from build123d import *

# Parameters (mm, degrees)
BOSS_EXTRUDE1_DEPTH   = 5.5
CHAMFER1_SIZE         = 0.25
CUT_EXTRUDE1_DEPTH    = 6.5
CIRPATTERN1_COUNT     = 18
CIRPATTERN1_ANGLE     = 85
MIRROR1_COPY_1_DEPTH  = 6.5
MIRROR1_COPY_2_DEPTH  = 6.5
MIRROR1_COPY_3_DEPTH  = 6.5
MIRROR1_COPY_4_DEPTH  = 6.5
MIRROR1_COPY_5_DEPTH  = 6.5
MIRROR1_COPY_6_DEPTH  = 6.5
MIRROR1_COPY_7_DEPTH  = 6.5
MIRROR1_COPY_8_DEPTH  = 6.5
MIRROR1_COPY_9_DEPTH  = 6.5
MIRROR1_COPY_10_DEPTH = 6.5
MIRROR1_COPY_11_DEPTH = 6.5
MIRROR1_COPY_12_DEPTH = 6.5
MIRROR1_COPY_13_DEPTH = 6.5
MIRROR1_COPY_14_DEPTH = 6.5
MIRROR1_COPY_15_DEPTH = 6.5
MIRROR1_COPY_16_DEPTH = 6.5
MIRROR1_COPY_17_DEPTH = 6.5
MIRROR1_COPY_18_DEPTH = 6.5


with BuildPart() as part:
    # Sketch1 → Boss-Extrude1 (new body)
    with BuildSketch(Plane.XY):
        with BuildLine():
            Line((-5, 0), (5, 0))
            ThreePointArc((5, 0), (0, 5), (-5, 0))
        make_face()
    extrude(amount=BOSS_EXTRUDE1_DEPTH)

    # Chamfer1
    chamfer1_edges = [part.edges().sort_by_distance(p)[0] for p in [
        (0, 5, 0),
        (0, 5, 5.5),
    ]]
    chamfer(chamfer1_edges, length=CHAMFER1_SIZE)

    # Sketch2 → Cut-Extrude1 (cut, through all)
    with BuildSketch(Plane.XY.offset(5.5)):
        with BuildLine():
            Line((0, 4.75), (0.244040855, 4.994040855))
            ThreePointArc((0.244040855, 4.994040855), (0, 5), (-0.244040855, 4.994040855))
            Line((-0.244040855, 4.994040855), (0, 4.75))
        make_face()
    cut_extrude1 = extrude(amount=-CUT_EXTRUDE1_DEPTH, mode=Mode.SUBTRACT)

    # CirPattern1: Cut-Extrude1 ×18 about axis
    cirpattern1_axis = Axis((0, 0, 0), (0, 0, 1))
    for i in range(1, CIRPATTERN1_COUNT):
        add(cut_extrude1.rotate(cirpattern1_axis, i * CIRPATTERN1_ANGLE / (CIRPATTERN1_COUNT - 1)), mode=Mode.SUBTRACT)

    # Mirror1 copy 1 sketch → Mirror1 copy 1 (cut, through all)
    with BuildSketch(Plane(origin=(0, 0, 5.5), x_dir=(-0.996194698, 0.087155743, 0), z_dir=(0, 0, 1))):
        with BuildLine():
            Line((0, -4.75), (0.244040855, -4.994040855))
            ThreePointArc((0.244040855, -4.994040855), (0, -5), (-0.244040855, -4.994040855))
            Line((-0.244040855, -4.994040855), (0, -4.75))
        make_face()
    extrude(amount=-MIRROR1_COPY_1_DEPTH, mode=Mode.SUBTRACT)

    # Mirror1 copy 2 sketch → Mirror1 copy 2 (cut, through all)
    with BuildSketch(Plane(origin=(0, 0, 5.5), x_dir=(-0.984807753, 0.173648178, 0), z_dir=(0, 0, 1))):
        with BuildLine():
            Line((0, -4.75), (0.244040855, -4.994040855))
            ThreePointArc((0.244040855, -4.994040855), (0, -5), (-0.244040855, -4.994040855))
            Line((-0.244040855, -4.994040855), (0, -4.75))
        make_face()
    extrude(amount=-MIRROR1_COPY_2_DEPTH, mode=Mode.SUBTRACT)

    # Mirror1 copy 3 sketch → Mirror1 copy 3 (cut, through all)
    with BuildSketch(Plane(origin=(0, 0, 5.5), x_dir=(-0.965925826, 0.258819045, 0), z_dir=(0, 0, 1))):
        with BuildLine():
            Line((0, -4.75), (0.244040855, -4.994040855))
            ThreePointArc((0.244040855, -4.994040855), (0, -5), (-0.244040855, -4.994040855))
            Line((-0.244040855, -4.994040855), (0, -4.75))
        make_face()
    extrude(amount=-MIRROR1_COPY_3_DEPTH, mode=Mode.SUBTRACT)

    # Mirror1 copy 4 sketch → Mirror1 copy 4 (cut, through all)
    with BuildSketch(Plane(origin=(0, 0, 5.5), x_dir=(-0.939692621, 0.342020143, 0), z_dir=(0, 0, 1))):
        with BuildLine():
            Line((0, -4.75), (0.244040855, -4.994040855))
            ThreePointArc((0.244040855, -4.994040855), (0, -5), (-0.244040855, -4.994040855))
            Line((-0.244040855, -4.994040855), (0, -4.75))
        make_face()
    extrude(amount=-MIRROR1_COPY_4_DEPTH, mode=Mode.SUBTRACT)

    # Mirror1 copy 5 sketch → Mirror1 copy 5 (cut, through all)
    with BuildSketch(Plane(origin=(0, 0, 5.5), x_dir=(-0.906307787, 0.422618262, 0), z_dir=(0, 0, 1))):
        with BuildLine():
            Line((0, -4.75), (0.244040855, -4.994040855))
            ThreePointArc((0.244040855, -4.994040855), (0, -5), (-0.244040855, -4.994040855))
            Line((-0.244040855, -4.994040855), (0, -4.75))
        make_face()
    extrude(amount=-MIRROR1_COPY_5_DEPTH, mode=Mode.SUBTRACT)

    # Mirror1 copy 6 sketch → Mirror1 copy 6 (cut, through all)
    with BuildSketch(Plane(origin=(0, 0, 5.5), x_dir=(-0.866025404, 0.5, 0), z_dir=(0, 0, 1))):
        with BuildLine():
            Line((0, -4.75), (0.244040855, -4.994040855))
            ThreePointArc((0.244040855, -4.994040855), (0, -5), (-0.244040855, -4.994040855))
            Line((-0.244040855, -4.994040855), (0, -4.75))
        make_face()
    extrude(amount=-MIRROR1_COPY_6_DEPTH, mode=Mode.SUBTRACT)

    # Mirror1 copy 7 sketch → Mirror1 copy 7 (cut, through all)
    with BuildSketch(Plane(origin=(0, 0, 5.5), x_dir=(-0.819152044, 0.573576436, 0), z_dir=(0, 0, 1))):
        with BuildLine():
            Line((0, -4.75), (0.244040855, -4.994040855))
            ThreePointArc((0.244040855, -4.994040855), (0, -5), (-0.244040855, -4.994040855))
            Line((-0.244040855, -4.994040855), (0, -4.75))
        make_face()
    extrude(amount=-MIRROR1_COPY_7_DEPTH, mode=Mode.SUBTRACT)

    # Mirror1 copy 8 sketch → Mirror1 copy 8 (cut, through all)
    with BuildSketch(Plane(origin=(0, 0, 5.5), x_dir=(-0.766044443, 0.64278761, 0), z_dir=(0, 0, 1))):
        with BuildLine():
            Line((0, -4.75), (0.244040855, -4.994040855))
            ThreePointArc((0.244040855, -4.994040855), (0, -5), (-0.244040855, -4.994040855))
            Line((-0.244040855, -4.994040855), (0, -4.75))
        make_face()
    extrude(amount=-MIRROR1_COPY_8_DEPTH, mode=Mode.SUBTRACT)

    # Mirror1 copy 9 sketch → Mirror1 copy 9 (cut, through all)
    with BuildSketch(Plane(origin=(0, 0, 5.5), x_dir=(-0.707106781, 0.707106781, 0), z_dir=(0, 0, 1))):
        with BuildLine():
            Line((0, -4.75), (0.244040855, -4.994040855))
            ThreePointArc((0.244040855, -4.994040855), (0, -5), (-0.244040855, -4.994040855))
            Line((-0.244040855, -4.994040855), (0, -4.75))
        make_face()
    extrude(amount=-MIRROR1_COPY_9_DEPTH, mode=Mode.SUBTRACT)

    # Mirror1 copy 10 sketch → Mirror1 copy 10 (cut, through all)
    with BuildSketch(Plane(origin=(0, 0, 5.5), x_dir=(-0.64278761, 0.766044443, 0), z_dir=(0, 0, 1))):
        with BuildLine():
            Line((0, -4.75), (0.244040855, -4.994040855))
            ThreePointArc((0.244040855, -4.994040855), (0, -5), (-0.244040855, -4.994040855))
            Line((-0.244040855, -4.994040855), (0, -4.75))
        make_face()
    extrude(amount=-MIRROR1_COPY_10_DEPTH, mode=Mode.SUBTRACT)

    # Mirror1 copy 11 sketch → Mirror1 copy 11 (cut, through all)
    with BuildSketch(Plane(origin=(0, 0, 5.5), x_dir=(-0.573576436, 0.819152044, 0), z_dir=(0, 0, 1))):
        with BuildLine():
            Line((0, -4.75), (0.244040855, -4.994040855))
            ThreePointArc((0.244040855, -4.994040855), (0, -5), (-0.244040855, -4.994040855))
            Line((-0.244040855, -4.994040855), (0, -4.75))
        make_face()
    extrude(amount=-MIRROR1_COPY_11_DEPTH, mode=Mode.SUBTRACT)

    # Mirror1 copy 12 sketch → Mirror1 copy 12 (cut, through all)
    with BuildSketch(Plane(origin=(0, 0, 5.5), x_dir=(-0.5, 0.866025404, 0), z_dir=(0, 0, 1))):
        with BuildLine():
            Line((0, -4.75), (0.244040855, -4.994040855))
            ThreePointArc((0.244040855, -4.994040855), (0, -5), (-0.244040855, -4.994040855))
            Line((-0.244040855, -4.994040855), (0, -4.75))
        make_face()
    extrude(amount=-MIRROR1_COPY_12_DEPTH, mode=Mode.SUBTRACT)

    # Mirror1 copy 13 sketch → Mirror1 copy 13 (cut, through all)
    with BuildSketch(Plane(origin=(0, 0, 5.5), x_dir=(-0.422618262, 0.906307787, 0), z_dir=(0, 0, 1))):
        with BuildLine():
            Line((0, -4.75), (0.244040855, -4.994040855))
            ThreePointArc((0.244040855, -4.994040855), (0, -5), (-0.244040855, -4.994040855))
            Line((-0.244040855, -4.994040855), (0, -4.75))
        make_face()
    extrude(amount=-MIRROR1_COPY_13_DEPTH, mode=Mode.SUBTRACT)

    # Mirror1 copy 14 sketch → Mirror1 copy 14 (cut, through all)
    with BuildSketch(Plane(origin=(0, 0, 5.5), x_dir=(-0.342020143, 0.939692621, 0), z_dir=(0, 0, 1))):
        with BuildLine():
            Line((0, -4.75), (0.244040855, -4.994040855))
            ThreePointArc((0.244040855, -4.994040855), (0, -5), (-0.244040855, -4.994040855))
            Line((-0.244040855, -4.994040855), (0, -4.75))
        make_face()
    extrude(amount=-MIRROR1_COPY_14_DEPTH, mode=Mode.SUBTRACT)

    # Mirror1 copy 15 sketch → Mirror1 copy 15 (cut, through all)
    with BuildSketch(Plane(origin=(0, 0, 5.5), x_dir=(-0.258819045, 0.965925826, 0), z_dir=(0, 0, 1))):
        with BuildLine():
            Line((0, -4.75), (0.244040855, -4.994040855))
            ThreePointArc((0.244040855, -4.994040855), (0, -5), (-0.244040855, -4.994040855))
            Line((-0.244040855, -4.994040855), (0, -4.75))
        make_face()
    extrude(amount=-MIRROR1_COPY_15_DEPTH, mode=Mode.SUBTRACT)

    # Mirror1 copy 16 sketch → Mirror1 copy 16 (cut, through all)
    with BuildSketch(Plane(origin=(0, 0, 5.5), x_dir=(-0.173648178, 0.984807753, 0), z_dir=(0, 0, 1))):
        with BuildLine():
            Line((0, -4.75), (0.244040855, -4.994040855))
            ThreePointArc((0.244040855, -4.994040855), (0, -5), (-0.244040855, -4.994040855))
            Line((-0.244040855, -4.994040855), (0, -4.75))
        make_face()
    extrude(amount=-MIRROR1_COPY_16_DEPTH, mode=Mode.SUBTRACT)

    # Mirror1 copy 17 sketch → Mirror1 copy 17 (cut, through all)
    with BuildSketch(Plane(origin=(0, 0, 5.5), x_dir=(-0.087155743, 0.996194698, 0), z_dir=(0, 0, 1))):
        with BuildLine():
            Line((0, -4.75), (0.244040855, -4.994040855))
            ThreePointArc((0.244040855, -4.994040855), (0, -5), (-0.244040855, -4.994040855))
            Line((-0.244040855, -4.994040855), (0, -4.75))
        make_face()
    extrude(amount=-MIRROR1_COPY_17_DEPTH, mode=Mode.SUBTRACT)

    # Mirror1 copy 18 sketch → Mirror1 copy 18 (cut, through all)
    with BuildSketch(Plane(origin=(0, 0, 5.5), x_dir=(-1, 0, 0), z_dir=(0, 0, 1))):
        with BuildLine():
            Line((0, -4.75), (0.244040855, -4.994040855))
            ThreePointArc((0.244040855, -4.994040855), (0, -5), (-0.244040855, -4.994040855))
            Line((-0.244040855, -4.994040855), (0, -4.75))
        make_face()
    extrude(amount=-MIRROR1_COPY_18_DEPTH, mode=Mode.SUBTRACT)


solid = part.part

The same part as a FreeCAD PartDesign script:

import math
import FreeCAD as App
import Part
import Sketcher
from FreeCAD import Vector
Q = App.Units.Quantity


def edges_at(feature, points):
    """Names of the edges that pass closest to the given points."""
    edges = feature.Shape.Edges
    near = lambda p: min(range(len(edges)), key=lambda i: edges[i].distToShape(Part.Vertex(*p))[0])
    return sorted({f"Edge{near(p) + 1}" for p in points})

doc = App.newDocument("Part")
params = doc.addObject("Spreadsheet::Sheet", "Params")
for row, (alias, value) in enumerate([
    ("sketch1_radius", "5 mm"),
    ("pad1_length", "5.5 mm"),
    ("chamfer_size", "0.25 mm"),
    ("sketch2_radius", "5 mm"),
    ("sketch3_radius", "5 mm"),
    ("sketch4_radius", "5 mm"),
    ("sketch5_radius", "5 mm"),
    ("sketch6_radius", "5 mm"),
    ("sketch7_radius", "5 mm"),
    ("sketch8_radius", "5 mm"),
    ("sketch9_radius", "5 mm"),
    ("sketch10_radius", "5 mm"),
    ("sketch11_radius", "5 mm"),
    ("sketch12_radius", "5 mm"),
    ("sketch13_radius", "5 mm"),
    ("sketch14_radius", "5 mm"),
    ("sketch15_radius", "5 mm"),
    ("sketch16_radius", "5 mm"),
    ("sketch17_radius", "5 mm"),
    ("sketch18_radius", "5 mm"),
    ("sketch19_radius", "5 mm"),
    ("sketch20_radius", "5 mm"),
], start=1):
    params.set(f"A{row}", alias)
    params.set(f"B{row}", "=" + value)
    params.setAlias(f"B{row}", alias)

body = doc.addObject("PartDesign::Body", "Body")

# Sketch on XY plane
sketch1 = body.newObject("Sketcher::SketchObject", "Sketch")
sketch1.AttachmentSupport = (doc.getObject("XY_Plane"), [""])
sketch1.MapMode = "FlatFace"
sketch1.addGeometry([
    Part.LineSegment(Vector(-5, 0, 0), Vector(5, 0, 0)),
    Part.ArcOfCircle(Part.Circle(Vector(0, 0, 0), Vector(0, 0, 1), 5), math.radians(0), math.radians(180)),
], False)
sketch1.addConstraint([
    Sketcher.Constraint("Coincident", 0, 1, 1, 2),
    Sketcher.Constraint("Coincident", 1, 1, 0, 2),
    Sketcher.Constraint("Horizontal", 0),
    Sketcher.Constraint("Coincident", 1, 3, -1, 1),
    Sketcher.Constraint("PointOnObject", 0, 1, -1),
    Sketcher.Constraint("Radius", 1, 5.0),
])
sketch1.setExpression("Constraints[5]", "Params.sketch1_radius")
pad1 = body.newObject("PartDesign::Pad", "Pad")
pad1.Profile = sketch1
pad1.setExpression("Length", "Params.pad1_length")
doc.recompute()

chamfer = body.newObject("PartDesign::Chamfer", "Chamfer")
chamfer.Base = (pad1, edges_at(pad1, [(0, 5, 0), (0, 5, 5.5)]))
chamfer.setExpression("Size", "Params.chamfer_size")

# Sketch on XY plane
sketch2 = body.newObject("Sketcher::SketchObject", "Sketch001")
sketch2.AttachmentSupport = (doc.getObject("XY_Plane"), [""])
sketch2.MapMode = "FlatFace"
sketch2.AttachmentOffset = App.Placement(Vector(0, 0, 5.5), App.Rotation())
sketch2.addGeometry([
    Part.LineSegment(Vector(0, 4.75, 0), Vector(0.24, 4.99, 0)),
    Part.ArcOfCircle(Part.Circle(Vector(0, 0, 0), Vector(0, 0, 1), 5), math.radians(87.2), math.radians(92.8)),
    Part.LineSegment(Vector(-0.24, 4.99, 0), Vector(0, 4.75, 0)),
], False)
sketch2.addConstraint([
    Sketcher.Constraint("Coincident", 0, 2, 1, 1),
    Sketcher.Constraint("Coincident", 1, 2, 2, 1),
    Sketcher.Constraint("Coincident", 2, 2, 0, 1),
    Sketcher.Constraint("Coincident", 1, 3, -1, 1),
    Sketcher.Constraint("PointOnObject", 2, 2, -2),
    Sketcher.Constraint("Perpendicular", 0, 2),
    Sketcher.Constraint("Horizontal", 0, 2, 1, 2),
    Sketcher.Constraint("Radius", 1, 5.0),
    Sketcher.Constraint("DistanceY", -1, 1, 2, 2, 4.75),
])
sketch2.setExpression("Constraints[7]", "Params.sketch2_radius")
pocket1 = body.newObject("PartDesign::Pocket", "Pocket")
pocket1.Profile = sketch2
pocket1.Type = "ThroughAll"
doc.recompute()

polarpattern = body.newObject("PartDesign::PolarPattern", "PolarPattern")
polarpattern.Originals = [pocket1]
polarpattern.Axis = (doc.getObject("Z_Axis"), [""])
polarpattern.Angle = 85
polarpattern.Occurrences = 18
body.Tip = polarpattern

# Sketch on XY plane
sketch3 = body.newObject("Sketcher::SketchObject", "Sketch002")
sketch3.AttachmentSupport = (doc.getObject("XY_Plane"), [""])
sketch3.MapMode = "FlatFace"
sketch3.AttachmentOffset = App.Placement(Vector(0, 0, 5.5), App.Rotation())
sketch3.addGeometry([
    Part.LineSegment(Vector(0.19, 5, 0), Vector(0.41, 4.73, 0)),
    Part.LineSegment(Vector(0.41, 4.73, 0), Vector(0.68, 4.95, 0)),
    Part.ArcOfCircle(Part.Circle(Vector(0, 0, 0), Vector(0, 0, 1), 5), math.radians(82.2), math.radians(87.8)),
], False)
sketch3.addConstraint([
    Sketcher.Constraint("Coincident", 0, 2, 1, 1),
    Sketcher.Constraint("Coincident", 1, 2, 2, 1),
    Sketcher.Constraint("Coincident", 2, 2, 0, 1),
    Sketcher.Constraint("Coincident", 2, 3, -1, 1),
    Sketcher.Constraint("Perpendicular", 0, 1),
    Sketcher.Constraint("Equal", 0, 1),
    Sketcher.Constraint("Radius", 2, 5.0),
    Sketcher.Constraint("Angle", 0, Q("-50 deg")),
    Sketcher.Constraint("DistanceX", -1, 1, 0, 2, 0.41399),
])
sketch3.setExpression("Constraints[6]", "Params.sketch3_radius")
pocket2 = body.newObject("PartDesign::Pocket", "Pocket001")
pocket2.Profile = sketch3
pocket2.Type = "ThroughAll"

# Sketch on XY plane
sketch4 = body.newObject("Sketcher::SketchObject", "Sketch003")
sketch4.AttachmentSupport = (doc.getObject("XY_Plane"), [""])
sketch4.MapMode = "FlatFace"
sketch4.AttachmentOffset = App.Placement(Vector(0, 0, 5.5), App.Rotation())
sketch4.addGeometry([
    Part.LineSegment(Vector(0.63, 4.96, 0), Vector(0.82, 4.68, 0)),
    Part.LineSegment(Vector(0.82, 4.68, 0), Vector(1.11, 4.88, 0)),
    Part.ArcOfCircle(Part.Circle(Vector(0, 0, 0), Vector(0, 0, 1), 5), math.radians(77.2), math.radians(82.8)),
], False)
sketch4.addConstraint([
    Sketcher.Constraint("Coincident", 0, 2, 1, 1),
    Sketcher.Constraint("Coincident", 1, 2, 2, 1),
    Sketcher.Constraint("Coincident", 2, 2, 0, 1),
    Sketcher.Constraint("Coincident", 2, 3, -1, 1),
    Sketcher.Constraint("Perpendicular", 0, 1),
    Sketcher.Constraint("Equal", 0, 1),
    Sketcher.Constraint("Radius", 2, 5.0),
    Sketcher.Constraint("Angle", 0, Q("-55 deg")),
    Sketcher.Constraint("DistanceX", -1, 1, 0, 2, 0.824829),
])
sketch4.setExpression("Constraints[6]", "Params.sketch4_radius")
pocket3 = body.newObject("PartDesign::Pocket", "Pocket002")
pocket3.Profile = sketch4
pocket3.Type = "ThroughAll"

# Sketch on XY plane
sketch5 = body.newObject("Sketcher::SketchObject", "Sketch004")
sketch5.AttachmentSupport = (doc.getObject("XY_Plane"), [""])
sketch5.MapMode = "FlatFace"
sketch5.AttachmentOffset = App.Placement(Vector(0, 0, 5.5), App.Rotation())
sketch5.addGeometry([
    Part.LineSegment(Vector(1.06, 4.89, 0), Vector(1.23, 4.59, 0)),
    Part.LineSegment(Vector(1.23, 4.59, 0), Vector(1.53, 4.76, 0)),
    Part.ArcOfCircle(Part.Circle(Vector(0, 0, 0), Vector(0, 0, 1), 5), math.radians(72.2), math.radians(77.8)),
], False)
sketch5.addConstraint([
    Sketcher.Constraint("Coincident", 0, 2, 1, 1),
    Sketcher.Constraint("Coincident", 1, 2, 2, 1),
    Sketcher.Constraint("Coincident", 2, 2, 0, 1),
    Sketcher.Constraint("Coincident", 2, 3, -1, 1),
    Sketcher.Constraint("Perpendicular", 0, 1),
    Sketcher.Constraint("Equal", 0, 1),
    Sketcher.Constraint("Radius", 2, 5.0),
    Sketcher.Constraint("Angle", 0, Q("-60 deg")),
    Sketcher.Constraint("DistanceX", -1, 1, 0, 2, 1.22939),
])
sketch5.setExpression("Constraints[6]", "Params.sketch5_radius")
pocket4 = body.newObject("PartDesign::Pocket", "Pocket003")
pocket4.Profile = sketch5
pocket4.Type = "ThroughAll"

# Sketch on XY plane
sketch6 = body.newObject("Sketcher::SketchObject", "Sketch005")
sketch6.AttachmentSupport = (doc.getObject("XY_Plane"), [""])
sketch6.MapMode = "FlatFace"
sketch6.AttachmentOffset = App.Placement(Vector(0, 0, 5.5), App.Rotation())
sketch6.addGeometry([
    Part.LineSegment(Vector(1.48, 4.78, 0), Vector(1.62, 4.46, 0)),
    Part.LineSegment(Vector(1.62, 4.46, 0), Vector(1.94, 4.61, 0)),
    Part.ArcOfCircle(Part.Circle(Vector(0, 0, 0), Vector(0, 0, 1), 5), math.radians(67.2), math.radians(72.8)),
], False)
sketch6.addConstraint([
    Sketcher.Constraint("Coincident", 0, 2, 1, 1),
    Sketcher.Constraint("Coincident", 1, 2, 2, 1),
    Sketcher.Constraint("Coincident", 2, 2, 0, 1),
    Sketcher.Constraint("Coincident", 2, 3, -1, 1),
    Sketcher.Constraint("Perpendicular", 0, 1),
    Sketcher.Constraint("Equal", 0, 1),
    Sketcher.Constraint("Radius", 2, 5.0),
    Sketcher.Constraint("Angle", 0, Q("-65 deg")),
    Sketcher.Constraint("DistanceY", -1, 1, 0, 2, 4.46354),
])
sketch6.setExpression("Constraints[6]", "Params.sketch6_radius")
pocket5 = body.newObject("PartDesign::Pocket", "Pocket004")
pocket5.Profile = sketch6
pocket5.Type = "ThroughAll"

# Sketch on XY plane
sketch7 = body.newObject("Sketcher::SketchObject", "Sketch006")
sketch7.AttachmentSupport = (doc.getObject("XY_Plane"), [""])
sketch7.MapMode = "FlatFace"
sketch7.AttachmentOffset = App.Placement(Vector(0, 0, 5.5), App.Rotation())
sketch7.addGeometry([
    Part.LineSegment(Vector(1.89, 4.63, 0), Vector(2.01, 4.3, 0)),
    Part.LineSegment(Vector(2.01, 4.3, 0), Vector(2.33, 4.42, 0)),
    Part.ArcOfCircle(Part.Circle(Vector(0, 0, 0), Vector(0, 0, 1), 5), math.radians(62.2), math.radians(67.8)),
], False)
sketch7.addConstraint([
    Sketcher.Constraint("Coincident", 0, 2, 1, 1),
    Sketcher.Constraint("Coincident", 1, 2, 2, 1),
    Sketcher.Constraint("Coincident", 2, 2, 0, 1),
    Sketcher.Constraint("Coincident", 2, 3, -1, 1),
    Sketcher.Constraint("Perpendicular", 0, 1),
    Sketcher.Constraint("Equal", 0, 1),
    Sketcher.Constraint("Radius", 2, 5.0),
    Sketcher.Constraint("Angle", 0, Q("-70 deg")),
    Sketcher.Constraint("DistanceY", -1, 1, 1, 2, 4.423002),
])
sketch7.setExpression("Constraints[6]", "Params.sketch7_radius")
pocket6 = body.newObject("PartDesign::Pocket", "Pocket005")
pocket6.Profile = sketch7
pocket6.Type = "ThroughAll"

# Sketch on XY plane
sketch8 = body.newObject("Sketcher::SketchObject", "Sketch007")
sketch8.AttachmentSupport = (doc.getObject("XY_Plane"), [""])
sketch8.MapMode = "FlatFace"
sketch8.AttachmentOffset = App.Placement(Vector(0, 0, 5.5), App.Rotation())
sketch8.addGeometry([
    Part.LineSegment(Vector(2.29, 4.45, 0), Vector(2.38, 4.11, 0)),
    Part.LineSegment(Vector(2.38, 4.11, 0), Vector(2.71, 4.2, 0)),
    Part.ArcOfCircle(Part.Circle(Vector(0, 0, 0), Vector(0, 0, 1), 5), math.radians(57.2), math.radians(62.8)),
], False)
sketch8.addConstraint([
    Sketcher.Constraint("Coincident", 0, 2, 1, 1),
    Sketcher.Constraint("Coincident", 1, 2, 2, 1),
    Sketcher.Constraint("Coincident", 2, 2, 0, 1),
    Sketcher.Constraint("Coincident", 2, 3, -1, 1),
    Sketcher.Constraint("Perpendicular", 0, 1),
    Sketcher.Constraint("Equal", 0, 1),
    Sketcher.Constraint("Radius", 2, 5.0),
    Sketcher.Constraint("Angle", 0, Q("-75 deg")),
    Sketcher.Constraint("DistanceX", -1, 1, 0, 2, 2.375),
])
sketch8.setExpression("Constraints[6]", "Params.sketch8_radius")
pocket7 = body.newObject("PartDesign::Pocket", "Pocket006")
pocket7.Profile = sketch8
pocket7.Type = "ThroughAll"

# Sketch on XY plane
sketch9 = body.newObject("Sketcher::SketchObject", "Sketch008")
sketch9.AttachmentSupport = (doc.getObject("XY_Plane"), [""])
sketch9.MapMode = "FlatFace"
sketch9.AttachmentOffset = App.Placement(Vector(0, 0, 5.5), App.Rotation())
sketch9.addGeometry([
    Part.LineSegment(Vector(2.66, 4.23, 0), Vector(2.72, 3.89, 0)),
    Part.LineSegment(Vector(2.72, 3.89, 0), Vector(3.06, 3.95, 0)),
    Part.ArcOfCircle(Part.Circle(Vector(0, 0, 0), Vector(0, 0, 1), 5), math.radians(52.2), math.radians(57.8)),
], False)
sketch9.addConstraint([
    Sketcher.Constraint("Coincident", 0, 2, 1, 1),
    Sketcher.Constraint("Coincident", 1, 2, 2, 1),
    Sketcher.Constraint("Coincident", 2, 2, 0, 1),
    Sketcher.Constraint("Coincident", 2, 3, -1, 1),
    Sketcher.Constraint("Perpendicular", 0, 1),
    Sketcher.Constraint("Equal", 0, 1),
    Sketcher.Constraint("Radius", 2, 5.0),
    Sketcher.Constraint("Angle", 0, Q("-80 deg")),
    Sketcher.Constraint("DistanceX", -1, 1, 0, 2, 2.724488),
])
sketch9.setExpression("Constraints[6]", "Params.sketch9_radius")
pocket8 = body.newObject("PartDesign::Pocket", "Pocket007")
pocket8.Profile = sketch9
pocket8.Type = "ThroughAll"

# Sketch on XY plane
sketch10 = body.newObject("Sketcher::SketchObject", "Sketch009")
sketch10.AttachmentSupport = (doc.getObject("XY_Plane"), [""])
sketch10.MapMode = "FlatFace"
sketch10.AttachmentOffset = App.Placement(Vector(0, 0, 5.5), App.Rotation())
sketch10.addGeometry([
    Part.LineSegment(Vector(3.02, 3.98, 0), Vector(3.05, 3.64, 0)),
    Part.LineSegment(Vector(3.05, 3.64, 0), Vector(3.4, 3.67, 0)),
    Part.ArcOfCircle(Part.Circle(Vector(0, 0, 0), Vector(0, 0, 1), 5), math.radians(47.2), math.radians(52.8)),
], False)
sketch10.addConstraint([
    Sketcher.Constraint("Coincident", 0, 2, 1, 1),
    Sketcher.Constraint("Coincident", 1, 2, 2, 1),
    Sketcher.Constraint("Coincident", 2, 2, 0, 1),
    Sketcher.Constraint("Coincident", 2, 3, -1, 1),
    Sketcher.Constraint("Perpendicular", 0, 1),
    Sketcher.Constraint("Equal", 0, 1),
    Sketcher.Constraint("Radius", 2, 5.0),
    Sketcher.Constraint("Angle", 0, Q("-85 deg")),
    Sketcher.Constraint("DistanceX", -1, 1, 0, 2, 3.053241),
])
sketch10.setExpression("Constraints[6]", "Params.sketch10_radius")
pocket9 = body.newObject("PartDesign::Pocket", "Pocket008")
pocket9.Profile = sketch10
pocket9.Type = "ThroughAll"

# Sketch on XY plane
sketch11 = body.newObject("Sketcher::SketchObject", "Sketch010")
sketch11.AttachmentSupport = (doc.getObject("XY_Plane"), [""])
sketch11.MapMode = "FlatFace"
sketch11.AttachmentOffset = App.Placement(Vector(0, 0, 5.5), App.Rotation())
sketch11.addGeometry([
    Part.LineSegment(Vector(3.36, 3.7, 0), Vector(3.36, 3.36, 0)),
    Part.LineSegment(Vector(3.36, 3.36, 0), Vector(3.7, 3.36, 0)),
    Part.ArcOfCircle(Part.Circle(Vector(0, 0, 0), Vector(0, 0, 1), 5), math.radians(42.2), math.radians(47.8)),
], False)
sketch11.addConstraint([
    Sketcher.Constraint("Coincident", 0, 2, 1, 1),
    Sketcher.Constraint("Coincident", 1, 2, 2, 1),
    Sketcher.Constraint("Coincident", 2, 2, 0, 1),
    Sketcher.Constraint("Vertical", 0),
    Sketcher.Constraint("Horizontal", 1),
    Sketcher.Constraint("Coincident", 2, 3, -1, 1),
    Sketcher.Constraint("Equal", 1, 0),
    Sketcher.Constraint("Radius", 2, 5.0),
    Sketcher.Constraint("DistanceX", 1, 1, 1, 2, 0.345126),
])
sketch11.setExpression("Constraints[7]", "Params.sketch11_radius")
pocket10 = body.newObject("PartDesign::Pocket", "Pocket009")
pocket10.Profile = sketch11
pocket10.Type = "ThroughAll"

# Sketch on XY plane
sketch12 = body.newObject("Sketcher::SketchObject", "Sketch011")
sketch12.AttachmentSupport = (doc.getObject("XY_Plane"), [""])
sketch12.MapMode = "FlatFace"
sketch12.AttachmentOffset = App.Placement(Vector(0, 0, 5.5), App.Rotation())
sketch12.addGeometry([
    Part.LineSegment(Vector(3.67, 3.4, 0), Vector(3.64, 3.05, 0)),
    Part.LineSegment(Vector(3.64, 3.05, 0), Vector(3.98, 3.02, 0)),
    Part.ArcOfCircle(Part.Circle(Vector(0, 0, 0), Vector(0, 0, 1), 5), math.radians(37.2), math.radians(42.8)),
], False)
sketch12.addConstraint([
    Sketcher.Constraint("Coincident", 0, 2, 1, 1),
    Sketcher.Constraint("Coincident", 1, 2, 2, 1),
    Sketcher.Constraint("Coincident", 2, 2, 0, 1),
    Sketcher.Constraint("Coincident", 2, 3, -1, 1),
    Sketcher.Constraint("Perpendicular", 0, 1),
    Sketcher.Constraint("Equal", 0, 1),
    Sketcher.Constraint("Radius", 2, 5.0),
    Sketcher.Constraint("Angle", 0, Q("-95 deg")),
    Sketcher.Constraint("DistanceX", -1, 1, 0, 2, 3.638711),
])
sketch12.setExpression("Constraints[6]", "Params.sketch12_radius")
pocket11 = body.newObject("PartDesign::Pocket", "Pocket010")
pocket11.Profile = sketch12
pocket11.Type = "ThroughAll"

# Sketch on XY plane
sketch13 = body.newObject("Sketcher::SketchObject", "Sketch012")
sketch13.AttachmentSupport = (doc.getObject("XY_Plane"), [""])
sketch13.MapMode = "FlatFace"
sketch13.AttachmentOffset = App.Placement(Vector(0, 0, 5.5), App.Rotation())
sketch13.addGeometry([
    Part.LineSegment(Vector(3.95, 3.06, 0), Vector(3.89, 2.72, 0)),
    Part.LineSegment(Vector(3.89, 2.72, 0), Vector(4.23, 2.66, 0)),
    Part.ArcOfCircle(Part.Circle(Vector(0, 0, 0), Vector(0, 0, 1), 5), math.radians(32.2), math.radians(37.8)),
], False)
sketch13.addConstraint([
    Sketcher.Constraint("Coincident", 0, 2, 1, 1),
    Sketcher.Constraint("Coincident", 1, 2, 2, 1),
    Sketcher.Constraint("Coincident", 2, 2, 0, 1),
    Sketcher.Constraint("Coincident", 2, 3, -1, 1),
    Sketcher.Constraint("Perpendicular", 0, 1),
    Sketcher.Constraint("Equal", 0, 1),
    Sketcher.Constraint("Radius", 2, 5.0),
    Sketcher.Constraint("Angle", 0, Q("-100 deg")),
    Sketcher.Constraint("DistanceY", -1, 1, 0, 2, 2.724488),
])
sketch13.setExpression("Constraints[6]", "Params.sketch13_radius")
pocket12 = body.newObject("PartDesign::Pocket", "Pocket011")
pocket12.Profile = sketch13
pocket12.Type = "ThroughAll"

# Sketch on XY plane
sketch14 = body.newObject("Sketcher::SketchObject", "Sketch013")
sketch14.AttachmentSupport = (doc.getObject("XY_Plane"), [""])
sketch14.MapMode = "FlatFace"
sketch14.AttachmentOffset = App.Placement(Vector(0, 0, 5.5), App.Rotation())
sketch14.addGeometry([
    Part.LineSegment(Vector(4.2, 2.71, 0), Vector(4.11, 2.38, 0)),
    Part.LineSegment(Vector(4.11, 2.38, 0), Vector(4.45, 2.29, 0)),
    Part.ArcOfCircle(Part.Circle(Vector(0, 0, 0), Vector(0, 0, 1), 5), math.radians(27.2), math.radians(32.8)),
], False)
sketch14.addConstraint([
    Sketcher.Constraint("Coincident", 0, 2, 1, 1),
    Sketcher.Constraint("Coincident", 1, 2, 2, 1),
    Sketcher.Constraint("Coincident", 2, 2, 0, 1),
    Sketcher.Constraint("Coincident", 2, 3, -1, 1),
    Sketcher.Constraint("Perpendicular", 0, 1),
    Sketcher.Constraint("Equal", 0, 1),
    Sketcher.Constraint("Radius", 2, 5.0),
    Sketcher.Constraint("Angle", 0, Q("-105 deg")),
    Sketcher.Constraint("DistanceY", -1, 1, 0, 2, 2.375),
])
sketch14.setExpression("Constraints[6]", "Params.sketch14_radius")
pocket13 = body.newObject("PartDesign::Pocket", "Pocket012")
pocket13.Profile = sketch14
pocket13.Type = "ThroughAll"

# Sketch on XY plane
sketch15 = body.newObject("Sketcher::SketchObject", "Sketch014")
sketch15.AttachmentSupport = (doc.getObject("XY_Plane"), [""])
sketch15.MapMode = "FlatFace"
sketch15.AttachmentOffset = App.Placement(Vector(0, 0, 5.5), App.Rotation())
sketch15.addGeometry([
    Part.LineSegment(Vector(4.42, 2.33, 0), Vector(4.3, 2.01, 0)),
    Part.LineSegment(Vector(4.3, 2.01, 0), Vector(4.63, 1.89, 0)),
    Part.ArcOfCircle(Part.Circle(Vector(0, 0, 0), Vector(0, 0, 1), 5), math.radians(22.2), math.radians(27.8)),
], False)
sketch15.addConstraint([
    Sketcher.Constraint("Coincident", 0, 2, 1, 1),
    Sketcher.Constraint("Coincident", 1, 2, 2, 1),
    Sketcher.Constraint("Coincident", 2, 2, 0, 1),
    Sketcher.Constraint("Coincident", 2, 3, -1, 1),
    Sketcher.Constraint("Perpendicular", 0, 1),
    Sketcher.Constraint("Equal", 0, 1),
    Sketcher.Constraint("Radius", 2, 5.0),
    Sketcher.Constraint("Angle", 0, Q("-110 deg")),
    Sketcher.Constraint("DistanceX", -1, 1, 2, 2, 4.423002),
])
sketch15.setExpression("Constraints[6]", "Params.sketch15_radius")
pocket14 = body.newObject("PartDesign::Pocket", "Pocket013")
pocket14.Profile = sketch15
pocket14.Type = "ThroughAll"

# Sketch on XY plane
sketch16 = body.newObject("Sketcher::SketchObject", "Sketch015")
sketch16.AttachmentSupport = (doc.getObject("XY_Plane"), [""])
sketch16.MapMode = "FlatFace"
sketch16.AttachmentOffset = App.Placement(Vector(0, 0, 5.5), App.Rotation())
sketch16.addGeometry([
    Part.LineSegment(Vector(4.61, 1.94, 0), Vector(4.46, 1.62, 0)),
    Part.LineSegment(Vector(4.46, 1.62, 0), Vector(4.78, 1.48, 0)),
    Part.ArcOfCircle(Part.Circle(Vector(0, 0, 0), Vector(0, 0, 1), 5), math.radians(17.2), math.radians(22.8)),
], False)
sketch16.addConstraint([
    Sketcher.Constraint("Coincident", 0, 2, 1, 1),
    Sketcher.Constraint("Coincident", 1, 2, 2, 1),
    Sketcher.Constraint("Coincident", 2, 2, 0, 1),
    Sketcher.Constraint("Coincident", 2, 3, -1, 1),
    Sketcher.Constraint("Perpendicular", 0, 1),
    Sketcher.Constraint("Equal", 0, 1),
    Sketcher.Constraint("Radius", 2, 5.0),
    Sketcher.Constraint("Angle", 0, Q("-115 deg")),
    Sketcher.Constraint("DistanceX", -1, 1, 0, 2, 4.46354),
])
sketch16.setExpression("Constraints[6]", "Params.sketch16_radius")
pocket15 = body.newObject("PartDesign::Pocket", "Pocket014")
pocket15.Profile = sketch16
pocket15.Type = "ThroughAll"

# Sketch on XY plane
sketch17 = body.newObject("Sketcher::SketchObject", "Sketch016")
sketch17.AttachmentSupport = (doc.getObject("XY_Plane"), [""])
sketch17.MapMode = "FlatFace"
sketch17.AttachmentOffset = App.Placement(Vector(0, 0, 5.5), App.Rotation())
sketch17.addGeometry([
    Part.LineSegment(Vector(4.76, 1.53, 0), Vector(4.59, 1.23, 0)),
    Part.LineSegment(Vector(4.59, 1.23, 0), Vector(4.89, 1.06, 0)),
    Part.ArcOfCircle(Part.Circle(Vector(0, 0, 0), Vector(0, 0, 1), 5), math.radians(12.2), math.radians(17.8)),
], False)
sketch17.addConstraint([
    Sketcher.Constraint("Coincident", 0, 2, 1, 1),
    Sketcher.Constraint("Coincident", 1, 2, 2, 1),
    Sketcher.Constraint("Coincident", 2, 2, 0, 1),
    Sketcher.Constraint("Coincident", 2, 3, -1, 1),
    Sketcher.Constraint("Perpendicular", 0, 1),
    Sketcher.Constraint("Equal", 0, 1),
    Sketcher.Constraint("Radius", 2, 5.0),
    Sketcher.Constraint("Angle", 0, Q("-120 deg")),
    Sketcher.Constraint("DistanceY", -1, 1, 0, 2, 1.22939),
])
sketch17.setExpression("Constraints[6]", "Params.sketch17_radius")
pocket16 = body.newObject("PartDesign::Pocket", "Pocket015")
pocket16.Profile = sketch17
pocket16.Type = "ThroughAll"

# Sketch on XY plane
sketch18 = body.newObject("Sketcher::SketchObject", "Sketch017")
sketch18.AttachmentSupport = (doc.getObject("XY_Plane"), [""])
sketch18.MapMode = "FlatFace"
sketch18.AttachmentOffset = App.Placement(Vector(0, 0, 5.5), App.Rotation())
sketch18.addGeometry([
    Part.LineSegment(Vector(4.88, 1.11, 0), Vector(4.68, 0.82, 0)),
    Part.LineSegment(Vector(4.68, 0.82, 0), Vector(4.96, 0.63, 0)),
    Part.ArcOfCircle(Part.Circle(Vector(0, 0, 0), Vector(0, 0, 1), 5), math.radians(7.2), math.radians(12.8)),
], False)
sketch18.addConstraint([
    Sketcher.Constraint("Coincident", 0, 2, 1, 1),
    Sketcher.Constraint("Coincident", 1, 2, 2, 1),
    Sketcher.Constraint("Coincident", 2, 2, 0, 1),
    Sketcher.Constraint("Coincident", 2, 3, -1, 1),
    Sketcher.Constraint("Perpendicular", 0, 1),
    Sketcher.Constraint("Equal", 0, 1),
    Sketcher.Constraint("Radius", 2, 5.0),
    Sketcher.Constraint("Angle", 0, Q("-125 deg")),
    Sketcher.Constraint("DistanceY", -1, 1, 0, 2, 0.824829),
])
sketch18.setExpression("Constraints[6]", "Params.sketch18_radius")
pocket17 = body.newObject("PartDesign::Pocket", "Pocket016")
pocket17.Profile = sketch18
pocket17.Type = "ThroughAll"

# Sketch on XY plane
sketch19 = body.newObject("Sketcher::SketchObject", "Sketch018")
sketch19.AttachmentSupport = (doc.getObject("XY_Plane"), [""])
sketch19.MapMode = "FlatFace"
sketch19.AttachmentOffset = App.Placement(Vector(0, 0, 5.5), App.Rotation())
sketch19.addGeometry([
    Part.LineSegment(Vector(4.95, 0.68, 0), Vector(4.73, 0.41, 0)),
    Part.LineSegment(Vector(4.73, 0.41, 0), Vector(5, 0.19, 0)),
    Part.ArcOfCircle(Part.Circle(Vector(0, 0, 0), Vector(0, 0, 1), 5), math.radians(2.2), math.radians(7.8)),
], False)
sketch19.addConstraint([
    Sketcher.Constraint("Coincident", 0, 2, 1, 1),
    Sketcher.Constraint("Coincident", 1, 2, 2, 1),
    Sketcher.Constraint("Coincident", 2, 2, 0, 1),
    Sketcher.Constraint("Coincident", 2, 3, -1, 1),
    Sketcher.Constraint("Perpendicular", 0, 1),
    Sketcher.Constraint("Equal", 0, 1),
    Sketcher.Constraint("Radius", 2, 5.0),
    Sketcher.Constraint("Angle", 0, Q("-130 deg")),
    Sketcher.Constraint("DistanceY", -1, 1, 0, 2, 0.41399),
])
sketch19.setExpression("Constraints[6]", "Params.sketch19_radius")
pocket18 = body.newObject("PartDesign::Pocket", "Pocket017")
pocket18.Profile = sketch19
pocket18.Type = "ThroughAll"

# Sketch on XY plane
sketch20 = body.newObject("Sketcher::SketchObject", "Sketch019")
sketch20.AttachmentSupport = (doc.getObject("XY_Plane"), [""])
sketch20.MapMode = "FlatFace"
sketch20.AttachmentOffset = App.Placement(Vector(0, 0, 5.5), App.Rotation())
sketch20.addGeometry([
    Part.LineSegment(Vector(-0.24, 4.99, 0), Vector(0, 4.75, 0)),
    Part.LineSegment(Vector(0, 4.75, 0), Vector(0.24, 4.99, 0)),
    Part.ArcOfCircle(Part.Circle(Vector(0, 0, 0), Vector(0, 0, 1), 5), math.radians(87.2), math.radians(92.8)),
], False)
sketch20.addConstraint([
    Sketcher.Constraint("Coincident", 0, 2, 1, 1),
    Sketcher.Constraint("Coincident", 1, 2, 2, 1),
    Sketcher.Constraint("Coincident", 2, 2, 0, 1),
    Sketcher.Constraint("Coincident", 2, 3, -1, 1),
    Sketcher.Constraint("PointOnObject", 0, 2, -2),
    Sketcher.Constraint("Perpendicular", 0, 1),
    Sketcher.Constraint("Horizontal", 1, 2, 2, 2),
    Sketcher.Constraint("Radius", 2, 5.0),
    Sketcher.Constraint("DistanceY", -1, 1, 0, 2, 4.75),
])
sketch20.setExpression("Constraints[7]", "Params.sketch20_radius")
pocket19 = body.newObject("PartDesign::Pocket", "Pocket018")
pocket19.Profile = sketch20
pocket19.Type = "ThroughAll"

doc.recompute()
